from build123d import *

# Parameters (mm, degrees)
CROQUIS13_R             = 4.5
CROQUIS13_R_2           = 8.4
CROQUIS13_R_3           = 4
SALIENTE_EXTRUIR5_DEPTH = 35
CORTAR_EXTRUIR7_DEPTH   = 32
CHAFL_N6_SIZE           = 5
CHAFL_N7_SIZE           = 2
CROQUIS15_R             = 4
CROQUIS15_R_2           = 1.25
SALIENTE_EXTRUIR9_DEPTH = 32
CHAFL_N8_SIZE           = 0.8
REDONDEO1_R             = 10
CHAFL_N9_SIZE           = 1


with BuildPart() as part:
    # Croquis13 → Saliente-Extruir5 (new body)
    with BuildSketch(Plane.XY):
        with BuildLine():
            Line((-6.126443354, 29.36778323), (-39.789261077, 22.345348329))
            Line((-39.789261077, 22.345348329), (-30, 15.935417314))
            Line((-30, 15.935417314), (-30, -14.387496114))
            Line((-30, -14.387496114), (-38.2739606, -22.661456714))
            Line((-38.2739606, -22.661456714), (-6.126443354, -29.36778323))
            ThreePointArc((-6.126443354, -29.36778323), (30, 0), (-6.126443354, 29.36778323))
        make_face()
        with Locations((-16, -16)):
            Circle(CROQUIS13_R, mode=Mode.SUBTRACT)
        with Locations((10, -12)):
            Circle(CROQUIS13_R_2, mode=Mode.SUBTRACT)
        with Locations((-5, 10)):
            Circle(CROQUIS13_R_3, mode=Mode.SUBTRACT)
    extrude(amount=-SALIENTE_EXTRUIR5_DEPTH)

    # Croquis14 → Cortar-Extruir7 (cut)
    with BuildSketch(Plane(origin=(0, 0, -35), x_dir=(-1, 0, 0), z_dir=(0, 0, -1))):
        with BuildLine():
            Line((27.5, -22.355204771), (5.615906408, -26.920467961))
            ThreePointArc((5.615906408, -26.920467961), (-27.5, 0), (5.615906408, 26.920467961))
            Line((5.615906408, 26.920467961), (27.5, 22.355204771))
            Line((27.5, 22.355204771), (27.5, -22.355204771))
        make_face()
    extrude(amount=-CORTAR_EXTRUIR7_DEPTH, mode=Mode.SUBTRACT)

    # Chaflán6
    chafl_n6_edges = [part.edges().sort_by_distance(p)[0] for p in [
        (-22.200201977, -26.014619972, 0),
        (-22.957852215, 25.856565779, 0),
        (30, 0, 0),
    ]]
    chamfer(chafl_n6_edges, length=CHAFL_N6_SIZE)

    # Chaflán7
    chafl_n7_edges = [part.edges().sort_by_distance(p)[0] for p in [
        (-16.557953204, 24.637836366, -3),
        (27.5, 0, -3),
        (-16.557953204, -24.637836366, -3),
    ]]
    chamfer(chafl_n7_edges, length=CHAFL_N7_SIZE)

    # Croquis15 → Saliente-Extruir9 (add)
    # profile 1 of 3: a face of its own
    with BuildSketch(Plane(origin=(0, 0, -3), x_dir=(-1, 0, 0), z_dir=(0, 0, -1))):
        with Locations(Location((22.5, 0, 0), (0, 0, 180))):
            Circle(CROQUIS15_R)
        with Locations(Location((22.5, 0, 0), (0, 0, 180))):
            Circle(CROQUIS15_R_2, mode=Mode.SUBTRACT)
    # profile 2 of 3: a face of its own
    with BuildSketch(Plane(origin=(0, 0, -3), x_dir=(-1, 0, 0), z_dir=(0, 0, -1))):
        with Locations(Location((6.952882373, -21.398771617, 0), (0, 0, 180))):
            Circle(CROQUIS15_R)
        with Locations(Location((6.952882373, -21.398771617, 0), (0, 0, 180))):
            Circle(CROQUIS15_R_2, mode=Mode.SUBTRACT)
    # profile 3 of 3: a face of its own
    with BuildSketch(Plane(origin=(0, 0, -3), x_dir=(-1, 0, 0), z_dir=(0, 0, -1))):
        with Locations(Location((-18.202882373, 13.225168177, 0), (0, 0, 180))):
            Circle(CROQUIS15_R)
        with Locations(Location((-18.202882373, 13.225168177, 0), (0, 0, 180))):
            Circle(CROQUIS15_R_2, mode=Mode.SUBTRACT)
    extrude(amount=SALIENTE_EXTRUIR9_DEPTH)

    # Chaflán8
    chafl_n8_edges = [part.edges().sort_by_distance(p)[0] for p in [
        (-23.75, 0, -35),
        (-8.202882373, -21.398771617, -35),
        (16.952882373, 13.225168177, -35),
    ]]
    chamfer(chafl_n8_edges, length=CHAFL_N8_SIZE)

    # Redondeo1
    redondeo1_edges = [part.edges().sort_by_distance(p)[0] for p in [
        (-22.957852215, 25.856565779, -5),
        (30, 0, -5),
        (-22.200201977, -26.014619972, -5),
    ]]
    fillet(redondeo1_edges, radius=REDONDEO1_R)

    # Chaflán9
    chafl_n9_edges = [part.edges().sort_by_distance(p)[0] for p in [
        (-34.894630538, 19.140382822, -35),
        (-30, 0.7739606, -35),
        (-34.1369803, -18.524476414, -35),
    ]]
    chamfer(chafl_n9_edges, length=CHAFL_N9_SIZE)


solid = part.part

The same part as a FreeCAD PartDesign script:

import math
import FreeCAD as App
import Part
import Sketcher
from FreeCAD import Vector
Q = App.Units.Quantity


def edges_at(feature, points):
    """Names of the edges that pass closest to the given points."""
    edges = feature.Shape.Edges
    near = lambda p: min(range(len(edges)), key=lambda i: edges[i].distToShape(Part.Vertex(*p))[0])
    return sorted({f"Edge{near(p) + 1}" for p in points})

doc = App.newDocument("Part")
body = doc.addObject("PartDesign::Body", "Body")

# Sketch on XY plane
sketch1 = body.newObject("Sketcher::SketchObject", "Sketch")
sketch1.AttachmentSupport = (doc.getObject("XY_Plane"), [""])
sketch1.MapMode = "FlatFace"
sketch1.addGeometry([
    Part.LineSegment(Vector(-6.126443, 29.367783, 0), Vector(-39.789261, 22.345348, 0)),  # 0
    Part.LineSegment(Vector(-39.789261, 22.345348, 0), Vector(-30, 15.935417, 0)),  # 1
    Part.LineSegment(Vector(-30, 15.935417, 0), Vector(-30, -14.387496, 0)),  # 2
    Part.LineSegment(Vector(-30, -14.387496, 0), Vector(-38.273961, -22.661457, 0)),  # 3
    Part.LineSegment(Vector(-38.273961, -22.661457, 0), Vector(-6.126443, -29.367783, 0)),  # 4
    Part.ArcOfCircle(Part.Circle(Vector(0, 0, 0), Vector(0, 0, 1), 30), math.radians(-101.783537), math.radians(101.783537)),  # 5
    Part.Circle(Vector(-16, -16, 0), Vector(0, 0, 1), 4.5),  # 6
    Part.Circle(Vector(10, -12, 0), Vector(0, 0, 1), 8.4),  # 7
    Part.Circle(Vector(-5, 10, 0), Vector(0, 0, 1), 4),  # 8
], False)
sketch1.addConstraint([
    Sketcher.Constraint("Coincident", 0, 2, 1, 1),
    Sketcher.Constraint("Coincident", 1, 2, 2, 1),
    Sketcher.Constraint("Coincident", 2, 2, 3, 1),
    Sketcher.Constraint("Coincident", 3, 2, 4, 1),
    Sketcher.Constraint("Tangent", 4, 2, 5, 1),
    Sketcher.Constraint("Tangent", 5, 2, 0, 1),
    Sketcher.Constraint("Vertical", 2),
    Sketcher.Constraint("Coincident", 5, 3, -1, 1),
    Sketcher.Constraint("Vertical", 4, 2, 5, 2),
    Sketcher.Constraint("Equal", 1, 3),
    Sketcher.Constraint("Diameter", 6, Q("9 mm")),
    Sketcher.Constraint("Diameter", 8, Q("8 mm")),
    Sketcher.Constraint("Radius", 5, Q("30 mm")),
    Sketcher.Constraint("Diameter", 7, Q("16.8 mm")),
    Sketcher.Constraint("Angle", 3, Q("-135 deg")),
    Sketcher.Constraint("DistanceX", 6, 3, -1, 1, Q("16 mm")),
    Sketcher.Constraint("DistanceY", 6, 3, -1, 1, Q("16 mm")),
    Sketcher.Constraint("DistanceX", -1, 1, 7, 3, Q("10 mm")),
    Sketcher.Constraint("DistanceY", 7, 3, -1, 1, Q("12 mm")),
    Sketcher.Constraint("DistanceX", 8, 3, -1, 1, Q("5 mm")),
    Sketcher.Constraint("DistanceY", -1, 1, 8, 3, Q("10 mm")),
    Sketcher.Constraint("DistanceX", 1, 2, -1, 1, Q("30 mm")),
    Sketcher.Constraint("DistanceX", 0, 2, 3, 2, Q("1.5153 mm")),
    Sketcher.Constraint("DistanceY", 2, 2, 2, 1, Q("30.322913 mm")),
    Sketcher.Constraint("DistanceX", 0, 2, -1, 1, Q("39.789261 mm")),
])
pad1 = body.newObject("PartDesign::Pad", "Pad")
pad1.Profile = sketch1
pad1.Length = 35
pad1.Reversed = True

# Sketch on XY plane
sketch2 = body.newObject("Sketcher::SketchObject", "Sketch001")
sketch2.AttachmentSupport = (doc.getObject("XY_Plane"), [""])
sketch2.MapMode = "FlatFace"
sketch2.AttachmentOffset = App.Placement(Vector(0, 0, -35), App.Rotation())
sketch2.addGeometry([
    Part.LineSegment(Vector(-5.615906, -26.920468, 0), Vector(-27.5, -22.355205, 0)),
    Part.LineSegment(Vector(-27.5, -22.355205, 0), Vector(-27.5, 22.355205, 0)),
    Part.LineSegment(Vector(-27.5, 22.355205, 0), Vector(-5.615906, 26.920468, 0)),
    Part.ArcOfCircle(Part.Circle(Vector(0, 0, 0), Vector(0, 0, 1), 27.5), math.radians(-101.783537), math.radians(101.783537)),
], False)
sketch2.addConstraint([
    Sketcher.Constraint("Coincident", 0, 2, 1, 1),
    Sketcher.Constraint("Coincident", 1, 2, 2, 1),
    Sketcher.Constraint("Tangent", 2, 2, 3, 2),
    Sketcher.Constraint("Tangent", 3, 1, 0, 1),
    Sketcher.Constraint("Vertical", 1),
    Sketcher.Constraint("Coincident", 3, 3, -1, 1),
    Sketcher.Constraint("Vertical", 2, 2, 3, 1),
    Sketcher.Constraint("Radius", 3, Q("27.5 mm")),
    Sketcher.Constraint("DistanceX", 0, 2, -1, 1, Q("27.5 mm")),
    Sketcher.Constraint("DistanceY", 1, 1, 1, 2, Q("44.71041 mm")),
])
pocket1 = body.newObject("PartDesign::Pocket", "Pocket")
pocket1.Profile = sketch2
pocket1.Length = 32
pocket1.Reversed = True
doc.recompute()

chamfer = body.newObject("PartDesign::Chamfer", "Chamfer")
chamfer.Base = (pocket1, edges_at(pocket1, [(-22.2, -26.015, 0), (-22.958, 25.857, 0), (30, 0, 0)]))
chamfer.Size = 5
doc.recompute()

chamfer2 = body.newObject("PartDesign::Chamfer", "Chamfer001")
chamfer2.Base = (chamfer, edges_at(chamfer, [(-16.558, 24.638, -3), (27.5, 0, -3), (-16.558, -24.638, -3)]))
chamfer2.Size = 2

# Sketch on XY plane
sketch3 = body.newObject("Sketcher::SketchObject", "Sketch002")
sketch3.AttachmentSupport = (doc.getObject("XY_Plane"), [""])
sketch3.MapMode = "FlatFace"
sketch3.AttachmentOffset = App.Placement(Vector(0, 0, -3), App.Rotation())
sketch3.addGeometry([
    Part.Circle(Vector(-22.5, 0, 0), Vector(0, 0, 1), 4),  # 0
    Part.Circle(Vector(-22.5, 0, 0), Vector(0, 0, 1), 1.25),  # 1
    Part.Circle(Vector(-6.952882, -21.398772, 0), Vector(0, 0, 1), 4),  # 2
    Part.Circle(Vector(-6.952882, -21.398772, 0), Vector(0, 0, 1), 1.25),  # 3
    Part.Circle(Vector(18.202882, 13.225168, 0), Vector(0, 0, 1), 4),  # 4
    Part.Circle(Vector(18.202882, 13.225168, 0), Vector(0, 0, 1), 1.25),  # 5
], False)
sketch3.addConstraint([
    Sketcher.Constraint("Coincident", 1, 3, 0, 3),
    Sketcher.Constraint("Coincident", 3, 3, 2, 3),
    Sketcher.Constraint("Coincident", 5, 3, 4, 3),
    Sketcher.Constraint("Equal", 0, 2),
    Sketcher.Constraint("Equal", 1, 3),
    Sketcher.Constraint("Equal", 2, 4),
    Sketcher.Constraint("Equal", 3, 5),
    Sketcher.Constraint("PointOnObject", 0, 3, -1),
    Sketcher.Constraint("Diameter", 0, Q("8 mm")),
    Sketcher.Constraint("Diameter", 1, Q("2.5 mm")),
    Sketcher.Constraint("DistanceX", 0, 3, -1, 1, Q("22.5 mm")),
    Sketcher.Constraint("DistanceY", 2, 3, -1, 1, Q("21.398772 mm")),
    Sketcher.Constraint("DistanceY", -1, 1, 4, 3, Q("13.225168 mm")),
    Sketcher.Constraint("DistanceX", 2, 3, -1, 1, Q("6.952882 mm")),
    Sketcher.Constraint("DistanceX", -1, 1, 4, 3, Q("18.202882 mm")),
])
pad2 = body.newObject("PartDesign::Pad", "Pad001")
pad2.Profile = sketch3
pad2.Length = 32
pad2.Reversed = True
doc.recompute()

chamfer3 = body.newObject("PartDesign::Chamfer", "Chamfer002")
chamfer3.Base = (pad2, edges_at(pad2, [(-23.75, 0, -35), (-8.203, -21.399, -35), (16.953, 13.225, -35)]))
chamfer3.Size = 0.8
doc.recompute()

fillet = body.newObject("PartDesign::Fillet", "Fillet")
fillet.Base = (chamfer3, edges_at(chamfer3, [(-22.958, 25.857, -5), (30, 0, -5), (-22.2, -26.015, -5)]))
fillet.Radius = 10
doc.recompute()

chamfer4 = body.newObject("PartDesign::Chamfer", "Chamfer003")
chamfer4.Base = (fillet, edges_at(fillet, [(-34.895, 19.14, -35), (-30, 0.774, -35), (-34.137, -18.524, -35)]))
chamfer4.Size = 1

doc.recompute()
